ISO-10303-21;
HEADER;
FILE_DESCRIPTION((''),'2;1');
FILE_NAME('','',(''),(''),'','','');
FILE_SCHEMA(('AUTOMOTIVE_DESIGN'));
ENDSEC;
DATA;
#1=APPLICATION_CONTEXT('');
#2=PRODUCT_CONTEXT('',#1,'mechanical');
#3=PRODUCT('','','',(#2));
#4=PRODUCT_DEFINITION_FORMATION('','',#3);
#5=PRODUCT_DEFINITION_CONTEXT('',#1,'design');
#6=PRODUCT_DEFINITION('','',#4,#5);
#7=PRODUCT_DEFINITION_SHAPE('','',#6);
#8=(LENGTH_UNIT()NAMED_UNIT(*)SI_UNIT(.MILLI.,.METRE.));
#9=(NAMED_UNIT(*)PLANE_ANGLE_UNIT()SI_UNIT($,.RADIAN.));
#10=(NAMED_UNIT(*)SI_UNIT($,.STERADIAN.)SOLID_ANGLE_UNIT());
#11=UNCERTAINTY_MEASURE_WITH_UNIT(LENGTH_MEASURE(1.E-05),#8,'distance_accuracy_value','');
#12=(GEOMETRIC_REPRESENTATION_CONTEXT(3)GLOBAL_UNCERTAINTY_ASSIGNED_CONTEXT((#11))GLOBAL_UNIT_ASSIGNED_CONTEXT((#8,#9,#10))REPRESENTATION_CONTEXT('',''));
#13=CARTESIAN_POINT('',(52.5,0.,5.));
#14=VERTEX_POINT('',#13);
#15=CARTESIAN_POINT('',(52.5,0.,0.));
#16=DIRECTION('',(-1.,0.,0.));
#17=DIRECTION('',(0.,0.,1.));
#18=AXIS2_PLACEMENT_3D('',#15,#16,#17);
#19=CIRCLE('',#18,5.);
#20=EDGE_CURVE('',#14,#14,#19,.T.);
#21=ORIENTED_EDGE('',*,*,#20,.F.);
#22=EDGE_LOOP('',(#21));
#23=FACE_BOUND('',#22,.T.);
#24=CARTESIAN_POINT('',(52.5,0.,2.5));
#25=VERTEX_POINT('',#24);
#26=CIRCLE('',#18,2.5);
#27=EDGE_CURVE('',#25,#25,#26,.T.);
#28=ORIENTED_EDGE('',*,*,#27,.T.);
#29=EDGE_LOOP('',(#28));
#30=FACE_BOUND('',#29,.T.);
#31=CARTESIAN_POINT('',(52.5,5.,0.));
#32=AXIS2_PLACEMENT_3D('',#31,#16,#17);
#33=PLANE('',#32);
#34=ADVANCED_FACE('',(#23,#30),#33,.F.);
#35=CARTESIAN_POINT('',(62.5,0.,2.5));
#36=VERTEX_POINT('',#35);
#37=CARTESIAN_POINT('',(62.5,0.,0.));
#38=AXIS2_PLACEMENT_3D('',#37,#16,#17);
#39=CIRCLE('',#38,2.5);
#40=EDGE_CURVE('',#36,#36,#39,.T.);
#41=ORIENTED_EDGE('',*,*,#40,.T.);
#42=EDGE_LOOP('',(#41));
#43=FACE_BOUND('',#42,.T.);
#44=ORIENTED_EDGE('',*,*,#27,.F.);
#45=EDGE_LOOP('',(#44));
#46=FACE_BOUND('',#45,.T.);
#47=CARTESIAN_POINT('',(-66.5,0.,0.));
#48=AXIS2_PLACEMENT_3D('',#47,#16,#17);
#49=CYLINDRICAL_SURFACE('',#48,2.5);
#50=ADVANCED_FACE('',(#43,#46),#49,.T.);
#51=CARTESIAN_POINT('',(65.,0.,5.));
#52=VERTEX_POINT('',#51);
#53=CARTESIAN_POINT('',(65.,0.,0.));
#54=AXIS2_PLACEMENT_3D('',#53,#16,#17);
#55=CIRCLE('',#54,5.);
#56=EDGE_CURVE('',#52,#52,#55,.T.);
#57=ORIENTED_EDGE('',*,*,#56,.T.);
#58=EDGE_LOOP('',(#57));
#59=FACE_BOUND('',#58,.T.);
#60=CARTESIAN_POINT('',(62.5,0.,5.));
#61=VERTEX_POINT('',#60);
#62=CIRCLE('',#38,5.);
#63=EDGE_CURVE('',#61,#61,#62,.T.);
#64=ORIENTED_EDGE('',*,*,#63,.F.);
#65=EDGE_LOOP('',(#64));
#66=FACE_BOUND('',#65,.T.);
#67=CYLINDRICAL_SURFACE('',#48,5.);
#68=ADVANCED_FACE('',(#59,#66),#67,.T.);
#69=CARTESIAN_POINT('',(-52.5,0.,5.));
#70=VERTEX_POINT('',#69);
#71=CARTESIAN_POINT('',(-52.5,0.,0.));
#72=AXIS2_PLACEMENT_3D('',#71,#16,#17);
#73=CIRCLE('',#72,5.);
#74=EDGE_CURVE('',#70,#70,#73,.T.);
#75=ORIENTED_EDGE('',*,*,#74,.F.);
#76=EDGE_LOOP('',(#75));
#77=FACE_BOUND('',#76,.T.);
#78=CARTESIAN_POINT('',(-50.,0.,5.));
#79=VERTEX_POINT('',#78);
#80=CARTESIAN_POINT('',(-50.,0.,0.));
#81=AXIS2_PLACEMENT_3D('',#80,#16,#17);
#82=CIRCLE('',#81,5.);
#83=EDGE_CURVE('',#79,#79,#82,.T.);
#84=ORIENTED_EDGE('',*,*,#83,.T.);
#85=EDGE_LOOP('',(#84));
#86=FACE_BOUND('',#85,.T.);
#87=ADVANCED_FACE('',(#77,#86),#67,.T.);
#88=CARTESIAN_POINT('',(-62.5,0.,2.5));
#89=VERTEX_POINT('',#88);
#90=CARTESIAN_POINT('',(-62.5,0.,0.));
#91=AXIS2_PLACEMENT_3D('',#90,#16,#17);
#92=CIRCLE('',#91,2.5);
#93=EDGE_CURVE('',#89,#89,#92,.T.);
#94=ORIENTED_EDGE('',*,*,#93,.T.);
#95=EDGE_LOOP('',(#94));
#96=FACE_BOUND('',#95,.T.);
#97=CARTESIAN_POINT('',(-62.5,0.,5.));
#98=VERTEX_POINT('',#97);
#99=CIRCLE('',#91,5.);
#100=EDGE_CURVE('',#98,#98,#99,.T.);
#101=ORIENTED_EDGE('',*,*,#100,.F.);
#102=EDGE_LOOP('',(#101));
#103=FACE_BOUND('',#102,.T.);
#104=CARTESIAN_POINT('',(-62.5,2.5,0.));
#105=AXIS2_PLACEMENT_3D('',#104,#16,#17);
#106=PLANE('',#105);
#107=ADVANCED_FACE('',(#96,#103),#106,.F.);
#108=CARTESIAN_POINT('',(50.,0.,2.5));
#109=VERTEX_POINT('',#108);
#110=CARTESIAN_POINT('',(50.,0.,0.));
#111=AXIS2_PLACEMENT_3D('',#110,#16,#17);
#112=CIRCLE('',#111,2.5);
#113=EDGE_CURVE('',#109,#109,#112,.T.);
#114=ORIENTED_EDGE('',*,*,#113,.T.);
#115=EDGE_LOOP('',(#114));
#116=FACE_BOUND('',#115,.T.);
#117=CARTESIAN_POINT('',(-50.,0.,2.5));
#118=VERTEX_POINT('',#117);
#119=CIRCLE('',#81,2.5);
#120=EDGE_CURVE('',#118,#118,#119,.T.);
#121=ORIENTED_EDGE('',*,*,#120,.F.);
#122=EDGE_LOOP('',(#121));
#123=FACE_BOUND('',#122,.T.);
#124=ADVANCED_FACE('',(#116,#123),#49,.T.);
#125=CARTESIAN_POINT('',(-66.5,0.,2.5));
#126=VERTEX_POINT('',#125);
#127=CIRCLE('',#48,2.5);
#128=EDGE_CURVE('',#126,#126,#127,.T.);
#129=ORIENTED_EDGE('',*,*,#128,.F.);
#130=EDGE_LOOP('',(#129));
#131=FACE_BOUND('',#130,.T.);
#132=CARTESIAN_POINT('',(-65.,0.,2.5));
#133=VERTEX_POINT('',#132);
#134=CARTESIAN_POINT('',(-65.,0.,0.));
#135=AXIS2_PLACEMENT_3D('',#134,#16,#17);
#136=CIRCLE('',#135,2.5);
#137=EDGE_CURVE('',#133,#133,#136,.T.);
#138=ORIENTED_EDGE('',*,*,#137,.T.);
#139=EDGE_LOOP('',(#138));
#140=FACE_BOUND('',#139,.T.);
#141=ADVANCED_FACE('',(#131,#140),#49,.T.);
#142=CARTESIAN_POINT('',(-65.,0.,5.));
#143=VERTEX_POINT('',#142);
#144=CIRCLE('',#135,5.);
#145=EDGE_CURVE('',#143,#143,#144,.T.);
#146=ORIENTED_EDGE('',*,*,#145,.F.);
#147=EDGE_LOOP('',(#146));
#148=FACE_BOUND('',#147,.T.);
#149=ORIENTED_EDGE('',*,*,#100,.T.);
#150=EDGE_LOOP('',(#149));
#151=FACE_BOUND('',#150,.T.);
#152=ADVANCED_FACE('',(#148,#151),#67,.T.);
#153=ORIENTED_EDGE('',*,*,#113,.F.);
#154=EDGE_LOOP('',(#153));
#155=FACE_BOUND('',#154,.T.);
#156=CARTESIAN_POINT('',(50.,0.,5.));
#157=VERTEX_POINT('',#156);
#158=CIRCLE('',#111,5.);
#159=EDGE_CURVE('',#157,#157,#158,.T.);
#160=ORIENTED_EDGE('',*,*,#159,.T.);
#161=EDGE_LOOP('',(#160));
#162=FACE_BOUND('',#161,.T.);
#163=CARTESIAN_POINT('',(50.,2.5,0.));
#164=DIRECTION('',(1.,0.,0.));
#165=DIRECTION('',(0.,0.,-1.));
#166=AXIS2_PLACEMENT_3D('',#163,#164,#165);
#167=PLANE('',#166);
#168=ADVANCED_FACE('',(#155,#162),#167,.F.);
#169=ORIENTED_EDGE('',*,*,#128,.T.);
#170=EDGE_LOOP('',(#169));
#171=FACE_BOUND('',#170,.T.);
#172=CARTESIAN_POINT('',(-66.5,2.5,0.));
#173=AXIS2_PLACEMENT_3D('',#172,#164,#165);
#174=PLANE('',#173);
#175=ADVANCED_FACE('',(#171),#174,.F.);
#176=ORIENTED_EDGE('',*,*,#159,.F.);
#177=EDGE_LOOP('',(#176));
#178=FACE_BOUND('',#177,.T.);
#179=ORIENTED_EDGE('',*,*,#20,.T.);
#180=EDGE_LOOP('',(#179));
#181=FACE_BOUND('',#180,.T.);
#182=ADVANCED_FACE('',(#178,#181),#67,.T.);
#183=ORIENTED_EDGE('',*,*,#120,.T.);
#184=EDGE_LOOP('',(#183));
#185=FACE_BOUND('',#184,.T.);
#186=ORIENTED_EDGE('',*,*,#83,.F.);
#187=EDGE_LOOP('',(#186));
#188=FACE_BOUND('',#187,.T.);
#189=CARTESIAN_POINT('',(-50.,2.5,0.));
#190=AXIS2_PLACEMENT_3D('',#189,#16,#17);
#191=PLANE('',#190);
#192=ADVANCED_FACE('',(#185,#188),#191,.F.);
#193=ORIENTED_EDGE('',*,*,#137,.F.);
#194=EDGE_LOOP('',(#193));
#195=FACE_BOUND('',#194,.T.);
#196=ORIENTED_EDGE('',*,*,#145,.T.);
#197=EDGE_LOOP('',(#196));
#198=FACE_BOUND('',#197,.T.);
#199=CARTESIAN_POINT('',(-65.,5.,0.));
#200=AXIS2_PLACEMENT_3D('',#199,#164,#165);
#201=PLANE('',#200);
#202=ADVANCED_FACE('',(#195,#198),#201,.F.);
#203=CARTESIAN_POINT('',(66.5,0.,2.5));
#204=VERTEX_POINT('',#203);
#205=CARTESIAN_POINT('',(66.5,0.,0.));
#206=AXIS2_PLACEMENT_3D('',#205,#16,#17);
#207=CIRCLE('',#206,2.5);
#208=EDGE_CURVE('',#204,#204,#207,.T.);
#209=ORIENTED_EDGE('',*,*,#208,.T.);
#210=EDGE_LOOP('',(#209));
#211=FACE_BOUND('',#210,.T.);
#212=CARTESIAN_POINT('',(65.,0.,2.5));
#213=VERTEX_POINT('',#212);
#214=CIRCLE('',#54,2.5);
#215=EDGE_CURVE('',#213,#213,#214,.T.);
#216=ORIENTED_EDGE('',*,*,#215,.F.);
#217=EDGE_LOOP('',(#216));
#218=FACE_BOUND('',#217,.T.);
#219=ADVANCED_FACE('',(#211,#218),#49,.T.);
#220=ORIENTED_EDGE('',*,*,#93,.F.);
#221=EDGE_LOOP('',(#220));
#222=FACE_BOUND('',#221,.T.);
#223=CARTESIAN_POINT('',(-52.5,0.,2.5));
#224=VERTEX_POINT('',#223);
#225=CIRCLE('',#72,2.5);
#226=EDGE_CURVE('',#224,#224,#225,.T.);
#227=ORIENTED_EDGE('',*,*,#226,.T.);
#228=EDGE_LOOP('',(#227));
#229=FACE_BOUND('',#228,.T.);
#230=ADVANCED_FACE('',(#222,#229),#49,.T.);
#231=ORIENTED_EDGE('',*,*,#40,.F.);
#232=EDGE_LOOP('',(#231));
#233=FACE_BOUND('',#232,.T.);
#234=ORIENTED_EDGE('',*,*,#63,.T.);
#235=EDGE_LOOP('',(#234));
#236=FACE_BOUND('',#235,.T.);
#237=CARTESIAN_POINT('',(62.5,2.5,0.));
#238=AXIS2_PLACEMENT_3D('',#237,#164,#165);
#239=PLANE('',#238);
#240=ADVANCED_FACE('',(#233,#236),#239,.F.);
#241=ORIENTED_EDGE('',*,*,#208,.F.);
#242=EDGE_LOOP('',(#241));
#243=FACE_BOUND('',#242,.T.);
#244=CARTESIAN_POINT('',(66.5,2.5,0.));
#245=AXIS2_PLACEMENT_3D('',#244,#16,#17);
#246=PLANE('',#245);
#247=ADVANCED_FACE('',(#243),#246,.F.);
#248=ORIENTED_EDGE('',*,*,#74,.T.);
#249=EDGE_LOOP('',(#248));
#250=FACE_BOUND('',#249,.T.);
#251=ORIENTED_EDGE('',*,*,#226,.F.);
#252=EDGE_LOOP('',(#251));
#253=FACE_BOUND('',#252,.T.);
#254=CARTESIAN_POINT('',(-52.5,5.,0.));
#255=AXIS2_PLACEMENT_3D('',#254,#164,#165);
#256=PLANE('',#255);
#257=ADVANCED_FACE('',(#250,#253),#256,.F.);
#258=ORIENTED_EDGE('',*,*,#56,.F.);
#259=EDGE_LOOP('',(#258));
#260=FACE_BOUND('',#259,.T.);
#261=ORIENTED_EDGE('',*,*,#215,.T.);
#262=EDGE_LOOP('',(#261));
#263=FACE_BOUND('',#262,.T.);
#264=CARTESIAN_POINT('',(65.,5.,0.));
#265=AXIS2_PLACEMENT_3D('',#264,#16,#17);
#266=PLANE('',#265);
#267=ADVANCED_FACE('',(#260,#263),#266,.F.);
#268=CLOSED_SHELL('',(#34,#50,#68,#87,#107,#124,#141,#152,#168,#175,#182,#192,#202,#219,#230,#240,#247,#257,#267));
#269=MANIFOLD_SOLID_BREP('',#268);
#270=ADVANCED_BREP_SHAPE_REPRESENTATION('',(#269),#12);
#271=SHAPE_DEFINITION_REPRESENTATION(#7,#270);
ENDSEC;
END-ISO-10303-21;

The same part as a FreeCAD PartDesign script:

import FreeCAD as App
import Part
import Sketcher
Q = App.Units.Quantity


def add_polygon(sketch, points):
    """Adds a closed chain of lines whose ends are joined by coincident constraints."""
    first, n = sketch.GeometryCount, len(points)
    for a, b in zip(points, points[1:] + points[:1]):
        sketch.addGeometry(Part.LineSegment(App.Vector(*a, 0), App.Vector(*b, 0)), False)
    for i in range(n):
        sketch.addConstraint(Sketcher.Constraint("Coincident", first + i, 2, first + (i + 1) % n, 1))

doc = App.newDocument("Part")
body = doc.addObject("PartDesign::Body", "Body")

# Sketch on XY plane
sketch1 = body.newObject("Sketcher::SketchObject", "Sketch")
sketch1.AttachmentSupport = (doc.getObject("XY_Plane"), [""])
sketch1.MapMode = "FlatFace"
add_polygon(sketch1, [(50, 2.5), (-50, 2.5), (-50, 5), (-52.5, 5), (-52.5, 2.5), (-62.5, 2.5), (-62.5, 5), (-65, 5), (-65, 2.5), (-66.5, 2.5), (-66.5, 0), (66.5, 0), (66.5, 2.5), (65, 2.5), (65, 5), (62.5, 5), (62.5, 2.5), (52.5, 2.5), (52.5, 5), (50, 5)])  # lines 0-19
sketch1.addConstraint([
    Sketcher.Constraint("Horizontal", 0),
    Sketcher.Constraint("Vertical", 1),
    Sketcher.Constraint("Horizontal", 2),
    Sketcher.Constraint("Vertical", 3),
    Sketcher.Constraint("Horizontal", 4),
    Sketcher.Constraint("Vertical", 5),
    Sketcher.Constraint("Horizontal", 6),
    Sketcher.Constraint("Vertical", 7),
    Sketcher.Constraint("Horizontal", 8),
    Sketcher.Constraint("Vertical", 9),
    Sketcher.Constraint("Horizontal", 10),
    Sketcher.Constraint("Vertical", 11),
    Sketcher.Constraint("Horizontal", 12),
    Sketcher.Constraint("Vertical", 13),
    Sketcher.Constraint("Horizontal", 14),
    Sketcher.Constraint("Vertical", 15),
    Sketcher.Constraint("Horizontal", 16),
    Sketcher.Constraint("Vertical", 17),
    Sketcher.Constraint("Horizontal", 18),
    Sketcher.Constraint("Vertical", 19),
    Sketcher.Constraint("Symmetric", 9, 2, 10, 2, -1, 1),
    Sketcher.Constraint("Symmetric", 7, 2, 12, 2, -2),
    Sketcher.Constraint("Symmetric", 5, 2, 14, 2, -2),
    Sketcher.Constraint("Symmetric", 3, 2, 16, 2, -2),
    Sketcher.Constraint("Symmetric", 1, 2, 18, 2, -2),
    Sketcher.Constraint("Horizontal", 0, 2, 3, 2),
    Sketcher.Constraint("Horizontal", 2, 2, 5, 2),
    Sketcher.Constraint("Horizontal", 4, 2, 7, 2),
    Sketcher.Constraint("Equal", 2, 6),
    Sketcher.Constraint("Equal", 18, 1),
    Sketcher.Constraint("Equal", 7, 9),
    Sketcher.Constraint("DistanceX", 0, 2, 0, 1, Q("100 mm")),
    Sketcher.Constraint("DistanceX", 4, 2, 4, 1, Q("10 mm")),
    Sketcher.Constraint("DistanceX", 10, 1, 10, 2, Q("133 mm")),
    Sketcher.Constraint("DistanceX", 2, 2, 2, 1, Q("2.5 mm")),
])
revolution = body.newObject("PartDesign::Revolution", "Revolution")
revolution.Profile = sketch1
revolution.ReferenceAxis = (sketch1, ["H_Axis"])
revolution.Angle = 360

doc.recompute()
